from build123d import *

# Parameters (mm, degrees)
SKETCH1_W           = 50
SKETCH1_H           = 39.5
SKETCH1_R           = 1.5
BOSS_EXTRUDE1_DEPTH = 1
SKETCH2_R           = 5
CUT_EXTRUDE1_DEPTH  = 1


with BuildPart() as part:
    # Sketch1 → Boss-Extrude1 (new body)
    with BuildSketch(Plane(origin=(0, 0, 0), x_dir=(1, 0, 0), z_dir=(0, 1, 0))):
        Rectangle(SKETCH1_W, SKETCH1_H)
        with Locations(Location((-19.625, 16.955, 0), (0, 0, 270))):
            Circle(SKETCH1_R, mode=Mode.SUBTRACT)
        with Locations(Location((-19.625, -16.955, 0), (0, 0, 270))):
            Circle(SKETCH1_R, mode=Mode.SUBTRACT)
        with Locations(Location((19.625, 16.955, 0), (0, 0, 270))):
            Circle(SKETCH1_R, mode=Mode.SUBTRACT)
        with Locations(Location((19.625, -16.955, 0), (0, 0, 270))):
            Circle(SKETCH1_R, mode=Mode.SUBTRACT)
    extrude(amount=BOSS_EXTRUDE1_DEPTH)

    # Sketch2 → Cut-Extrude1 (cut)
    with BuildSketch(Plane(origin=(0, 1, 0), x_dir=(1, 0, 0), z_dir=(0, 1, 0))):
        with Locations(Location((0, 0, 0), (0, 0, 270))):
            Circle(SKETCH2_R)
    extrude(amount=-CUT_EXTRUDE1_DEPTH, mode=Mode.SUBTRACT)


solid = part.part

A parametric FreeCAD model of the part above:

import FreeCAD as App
import Part
import Sketcher

V = App.Vector

doc = App.newDocument("Part")
body = doc.addObject("PartDesign::Body", "Body")

# Sketch on XZ plane
sketch1 = doc.addObject("Sketcher::SketchObject", "Sketch")
body.addObject(sketch1)
sketch1.AttachmentSupport = (doc.XZ_Plane, [""])
sketch1.MapMode = "FlatFace"
sketch1.addGeometry([
    Part.LineSegment(V(-25, -19.75, 0), V(-25, 19.75, 0)),  # 0
    Part.LineSegment(V(-25, 19.75, 0), V(25, 19.75, 0)),  # 1
    Part.LineSegment(V(25, 19.75, 0), V(25, -19.75, 0)),  # 2
    Part.LineSegment(V(25, -19.75, 0), V(-25, -19.75, 0)),  # 3
    Part.Circle(V(-19.625, 16.955, 0), V(0, 0, 1), 1.5),  # 4
    Part.Circle(V(19.625, 16.955, 0), V(0, 0, 1), 1.5),  # 5
    Part.Circle(V(-19.625, -16.955, 0), V(0, 0, 1), 1.5),  # 6
    Part.Circle(V(19.625, -16.955, 0), V(0, 0, 1), 1.5),  # 7
], False)
sketch1.addConstraint([
    Sketcher.Constraint("Coincident", 0, 2, 1, 1),
    Sketcher.Constraint("Coincident", 1, 2, 2, 1),
    Sketcher.Constraint("Coincident", 2, 2, 3, 1),
    Sketcher.Constraint("Coincident", 3, 2, 0, 1),
    Sketcher.Constraint("Vertical", 0),
    Sketcher.Constraint("Horizontal", 1),
    Sketcher.Constraint("Vertical", 2),
    Sketcher.Constraint("Horizontal", 3),
    Sketcher.Constraint("Equal", 4, 5),
    Sketcher.Constraint("Equal", 5, 6),
    Sketcher.Constraint("Equal", 6, 7),
    Sketcher.Constraint("Symmetric", 5, 3, 6, 3, -1, 1),
    Sketcher.Constraint("Symmetric", 4, 3, 7, 3, -1, 1),
    Sketcher.Constraint("Symmetric", 0, 2, 2, 2, -1, 1),
    Sketcher.Constraint("Symmetric", 4, 3, 5, 3, -2),
    Sketcher.Constraint("Diameter", 4, 3.0),
    Sketcher.Constraint("DistanceX", 1, 1, 1, 2, 50.0),
    Sketcher.Constraint("DistanceY", 0, 1, 0, 2, 39.5),
    Sketcher.Constraint("DistanceX", 4, 3, 5, 3, 39.25),
    Sketcher.Constraint("DistanceY", 6, 3, 4, 3, 33.91),
])
pad1 = doc.addObject("PartDesign::Pad", "Pad")
body.addObject(pad1)
pad1.Profile = sketch1
pad1.Length = 1
pad1.Reversed = True

# Sketch on XZ plane
sketch2 = doc.addObject("Sketcher::SketchObject", "Sketch001")
body.addObject(sketch2)
sketch2.AttachmentSupport = (doc.XZ_Plane, [""])
sketch2.MapMode = "FlatFace"
sketch2.AttachmentOffset = App.Placement(V(0, 0, -1), App.Rotation())
sketch2.addGeometry(Part.Circle(V(0, 0, 0), V(0, 0, 1), 5), False)
sketch2.addConstraint([
    Sketcher.Constraint("Coincident", 0, 3, -1, 1),
    Sketcher.Constraint("Diameter", 0, 10.0),
])
pocket1 = doc.addObject("PartDesign::Pocket", "Pocket")
body.addObject(pocket1)
pocket1.Profile = sketch2
pocket1.Length = 1
pocket1.Reversed = True

doc.recompute()
